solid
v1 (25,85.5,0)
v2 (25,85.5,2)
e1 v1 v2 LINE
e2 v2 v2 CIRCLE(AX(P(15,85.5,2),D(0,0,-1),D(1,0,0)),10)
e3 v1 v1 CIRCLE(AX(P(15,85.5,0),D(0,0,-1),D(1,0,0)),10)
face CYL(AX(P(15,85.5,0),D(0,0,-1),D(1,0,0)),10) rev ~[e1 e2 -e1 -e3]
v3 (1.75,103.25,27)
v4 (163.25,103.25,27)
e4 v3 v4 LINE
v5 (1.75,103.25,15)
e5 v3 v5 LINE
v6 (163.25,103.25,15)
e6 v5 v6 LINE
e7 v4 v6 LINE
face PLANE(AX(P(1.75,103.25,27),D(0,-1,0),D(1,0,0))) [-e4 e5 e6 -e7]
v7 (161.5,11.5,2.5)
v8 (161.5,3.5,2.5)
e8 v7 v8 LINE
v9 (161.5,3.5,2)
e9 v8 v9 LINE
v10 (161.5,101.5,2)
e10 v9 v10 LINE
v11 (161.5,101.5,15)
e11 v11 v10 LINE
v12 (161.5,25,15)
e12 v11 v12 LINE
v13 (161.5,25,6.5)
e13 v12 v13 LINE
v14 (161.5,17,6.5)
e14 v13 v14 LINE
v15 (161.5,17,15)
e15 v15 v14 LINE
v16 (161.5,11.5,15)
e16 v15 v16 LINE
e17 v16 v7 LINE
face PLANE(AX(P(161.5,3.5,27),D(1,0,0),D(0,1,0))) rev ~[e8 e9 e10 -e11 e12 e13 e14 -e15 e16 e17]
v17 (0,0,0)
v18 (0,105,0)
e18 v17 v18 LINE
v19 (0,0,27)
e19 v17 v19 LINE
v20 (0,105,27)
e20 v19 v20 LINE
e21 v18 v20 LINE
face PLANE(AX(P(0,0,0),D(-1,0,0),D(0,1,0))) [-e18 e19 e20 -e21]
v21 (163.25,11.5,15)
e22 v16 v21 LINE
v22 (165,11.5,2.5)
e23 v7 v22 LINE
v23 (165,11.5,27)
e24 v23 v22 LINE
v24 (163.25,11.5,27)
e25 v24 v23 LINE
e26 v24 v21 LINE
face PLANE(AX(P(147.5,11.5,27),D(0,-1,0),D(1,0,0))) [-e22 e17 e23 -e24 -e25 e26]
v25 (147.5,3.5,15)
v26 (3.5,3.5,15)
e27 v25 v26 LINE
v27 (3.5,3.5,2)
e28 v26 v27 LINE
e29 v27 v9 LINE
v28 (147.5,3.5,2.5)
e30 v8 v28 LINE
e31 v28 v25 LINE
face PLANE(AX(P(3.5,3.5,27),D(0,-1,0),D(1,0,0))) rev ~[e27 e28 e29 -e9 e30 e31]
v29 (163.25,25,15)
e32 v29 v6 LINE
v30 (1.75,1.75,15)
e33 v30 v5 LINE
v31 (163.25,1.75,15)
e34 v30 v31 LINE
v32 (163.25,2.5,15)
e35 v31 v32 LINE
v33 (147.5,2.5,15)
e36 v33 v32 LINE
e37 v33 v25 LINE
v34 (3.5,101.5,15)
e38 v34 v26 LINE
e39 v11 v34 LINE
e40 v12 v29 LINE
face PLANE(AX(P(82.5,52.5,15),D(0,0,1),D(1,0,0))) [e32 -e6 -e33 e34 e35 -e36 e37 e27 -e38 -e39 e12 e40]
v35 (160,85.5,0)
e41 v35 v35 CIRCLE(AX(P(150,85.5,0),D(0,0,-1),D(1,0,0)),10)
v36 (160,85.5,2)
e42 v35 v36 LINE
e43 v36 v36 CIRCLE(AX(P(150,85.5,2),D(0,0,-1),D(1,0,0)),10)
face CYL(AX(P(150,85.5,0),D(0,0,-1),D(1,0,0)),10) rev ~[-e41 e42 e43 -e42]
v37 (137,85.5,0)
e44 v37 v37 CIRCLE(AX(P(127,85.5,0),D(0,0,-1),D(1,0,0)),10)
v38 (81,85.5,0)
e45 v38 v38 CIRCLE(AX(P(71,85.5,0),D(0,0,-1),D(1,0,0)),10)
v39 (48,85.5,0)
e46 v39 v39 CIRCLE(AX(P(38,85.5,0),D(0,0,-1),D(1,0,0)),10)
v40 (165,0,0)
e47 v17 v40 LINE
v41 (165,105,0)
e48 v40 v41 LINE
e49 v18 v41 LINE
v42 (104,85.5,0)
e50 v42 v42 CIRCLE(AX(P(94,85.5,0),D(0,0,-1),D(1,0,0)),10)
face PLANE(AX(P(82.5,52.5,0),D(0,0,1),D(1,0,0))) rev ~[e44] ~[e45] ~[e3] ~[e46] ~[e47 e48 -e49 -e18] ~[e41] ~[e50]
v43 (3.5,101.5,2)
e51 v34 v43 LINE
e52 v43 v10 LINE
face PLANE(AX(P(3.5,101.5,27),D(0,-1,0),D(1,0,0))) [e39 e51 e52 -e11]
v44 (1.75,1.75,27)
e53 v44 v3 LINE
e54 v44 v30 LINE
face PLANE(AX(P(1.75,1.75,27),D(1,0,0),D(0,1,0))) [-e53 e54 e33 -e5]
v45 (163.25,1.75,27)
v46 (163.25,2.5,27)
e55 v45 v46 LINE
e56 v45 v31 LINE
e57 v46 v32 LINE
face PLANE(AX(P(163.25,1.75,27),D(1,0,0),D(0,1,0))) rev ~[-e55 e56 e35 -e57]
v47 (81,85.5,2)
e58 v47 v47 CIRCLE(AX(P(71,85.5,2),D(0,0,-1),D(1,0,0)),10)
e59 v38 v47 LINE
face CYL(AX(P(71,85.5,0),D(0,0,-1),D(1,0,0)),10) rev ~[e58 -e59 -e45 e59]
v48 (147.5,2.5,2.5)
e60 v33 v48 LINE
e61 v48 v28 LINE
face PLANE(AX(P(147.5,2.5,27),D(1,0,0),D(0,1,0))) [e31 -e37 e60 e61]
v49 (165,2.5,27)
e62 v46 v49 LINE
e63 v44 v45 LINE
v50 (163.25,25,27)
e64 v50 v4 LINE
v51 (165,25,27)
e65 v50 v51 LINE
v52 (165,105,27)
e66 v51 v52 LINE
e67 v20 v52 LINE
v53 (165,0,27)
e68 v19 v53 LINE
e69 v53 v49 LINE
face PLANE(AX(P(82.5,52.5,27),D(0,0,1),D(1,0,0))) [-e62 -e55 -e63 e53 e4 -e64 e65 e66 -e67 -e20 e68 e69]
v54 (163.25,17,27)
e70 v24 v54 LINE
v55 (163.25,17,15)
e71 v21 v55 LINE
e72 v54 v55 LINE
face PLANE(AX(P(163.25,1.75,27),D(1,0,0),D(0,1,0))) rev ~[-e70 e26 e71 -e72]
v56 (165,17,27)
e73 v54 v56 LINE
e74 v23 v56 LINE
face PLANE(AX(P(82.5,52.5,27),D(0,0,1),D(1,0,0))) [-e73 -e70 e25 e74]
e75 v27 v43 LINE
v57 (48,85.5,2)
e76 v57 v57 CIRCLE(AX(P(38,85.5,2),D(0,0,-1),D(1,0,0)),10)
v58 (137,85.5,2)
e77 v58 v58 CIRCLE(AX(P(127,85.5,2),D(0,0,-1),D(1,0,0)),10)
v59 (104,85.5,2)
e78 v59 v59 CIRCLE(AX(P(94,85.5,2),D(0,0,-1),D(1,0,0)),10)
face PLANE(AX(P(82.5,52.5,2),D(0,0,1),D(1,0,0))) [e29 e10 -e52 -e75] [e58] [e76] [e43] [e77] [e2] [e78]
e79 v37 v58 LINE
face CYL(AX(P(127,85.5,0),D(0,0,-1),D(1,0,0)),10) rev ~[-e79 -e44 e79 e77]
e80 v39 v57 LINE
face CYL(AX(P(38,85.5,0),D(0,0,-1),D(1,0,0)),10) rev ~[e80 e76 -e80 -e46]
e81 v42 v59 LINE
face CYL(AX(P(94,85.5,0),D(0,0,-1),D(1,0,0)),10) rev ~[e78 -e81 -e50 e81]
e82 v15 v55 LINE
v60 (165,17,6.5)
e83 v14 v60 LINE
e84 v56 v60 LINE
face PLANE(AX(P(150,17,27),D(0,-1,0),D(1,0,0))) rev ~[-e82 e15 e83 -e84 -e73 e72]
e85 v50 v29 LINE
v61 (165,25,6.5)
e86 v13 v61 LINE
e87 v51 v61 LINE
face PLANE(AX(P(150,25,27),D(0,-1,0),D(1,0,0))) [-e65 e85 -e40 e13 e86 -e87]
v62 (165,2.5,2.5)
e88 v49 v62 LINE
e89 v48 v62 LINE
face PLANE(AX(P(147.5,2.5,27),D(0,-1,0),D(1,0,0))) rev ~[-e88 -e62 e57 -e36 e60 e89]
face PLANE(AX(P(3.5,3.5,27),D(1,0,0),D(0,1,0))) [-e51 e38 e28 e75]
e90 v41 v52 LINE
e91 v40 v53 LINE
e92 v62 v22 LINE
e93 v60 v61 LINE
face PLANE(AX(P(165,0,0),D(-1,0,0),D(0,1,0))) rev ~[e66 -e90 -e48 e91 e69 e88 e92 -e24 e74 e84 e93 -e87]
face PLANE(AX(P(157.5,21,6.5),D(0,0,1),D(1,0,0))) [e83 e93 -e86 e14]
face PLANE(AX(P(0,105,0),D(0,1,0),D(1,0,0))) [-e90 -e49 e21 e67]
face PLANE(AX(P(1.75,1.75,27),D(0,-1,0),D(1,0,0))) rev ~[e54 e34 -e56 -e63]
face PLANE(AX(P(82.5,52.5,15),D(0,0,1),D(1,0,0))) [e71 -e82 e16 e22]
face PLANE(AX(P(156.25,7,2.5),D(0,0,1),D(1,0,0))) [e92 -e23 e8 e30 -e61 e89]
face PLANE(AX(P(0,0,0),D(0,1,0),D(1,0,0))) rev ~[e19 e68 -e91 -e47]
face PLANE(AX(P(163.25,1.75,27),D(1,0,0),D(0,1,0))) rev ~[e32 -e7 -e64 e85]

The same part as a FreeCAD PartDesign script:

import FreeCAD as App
import Part
import Sketcher
Q = App.Units.Quantity

doc = App.newDocument("Part")
body = doc.addObject("PartDesign::Body", "Body")

# Sketch on XY plane
sketch1 = body.newObject("Sketcher::SketchObject", "Sketch")
sketch1.AttachmentSupport = (doc.getObject("XY_Plane"), [""])
sketch1.MapMode = "FlatFace"
sketch1.addGeometry(Part.LineSegment(App.Vector(0, 105, 0), App.Vector(0, 0, 0)), False)
sketch1.addGeometry(Part.LineSegment(App.Vector(0, 0, 0), App.Vector(165, 0, 0)), False)
sketch1.addGeometry(Part.LineSegment(App.Vector(165, 0, 0), App.Vector(165, 105, 0)), False)
sketch1.addGeometry(Part.LineSegment(App.Vector(165, 105, 0), App.Vector(0, 105, 0)), False)
sketch1.addConstraint(Sketcher.Constraint("Coincident", 0, 2, 1, 1))
sketch1.addConstraint(Sketcher.Constraint("Coincident", 1, 2, 2, 1))
sketch1.addConstraint(Sketcher.Constraint("Coincident", 2, 2, 3, 1))
sketch1.addConstraint(Sketcher.Constraint("Coincident", 3, 2, 0, 1))
sketch1.addConstraint(Sketcher.Constraint("Vertical", 0))
sketch1.addConstraint(Sketcher.Constraint("Horizontal", 1))
sketch1.addConstraint(Sketcher.Constraint("Vertical", 2))
sketch1.addConstraint(Sketcher.Constraint("Horizontal", 3))
sketch1.addConstraint(Sketcher.Constraint("Coincident", 0, 2, -1, 1))
sketch1.addConstraint(Sketcher.Constraint("DistanceX", 1, 1, 1, 2, Q("165 mm")))
sketch1.addConstraint(Sketcher.Constraint("DistanceY", 0, 2, 0, 1, Q("105 mm")))
pad1 = body.newObject("PartDesign::Pad", "Pad")
pad1.Profile = sketch1
pad1.Length = 27

# Sketch on XY plane
sketch2 = body.newObject("Sketcher::SketchObject", "Sketch001")
sketch2.AttachmentSupport = (doc.getObject("XY_Plane"), [""])
sketch2.MapMode = "FlatFace"
sketch2.AttachmentOffset = App.Placement(App.Vector(0, 0, 27), App.Rotation())
sketch2.addGeometry(Part.LineSegment(App.Vector(4, 102, 0), App.Vector(4, 4, 0)), False)
sketch2.addGeometry(Part.LineSegment(App.Vector(4, 4, 0), App.Vector(162, 4, 0)), False)
sketch2.addGeometry(Part.LineSegment(App.Vector(162, 4, 0), App.Vector(162, 102, 0)), False)
sketch2.addGeometry(Part.LineSegment(App.Vector(162, 102, 0), App.Vector(4, 102, 0)), False)
sketch2.addConstraint(Sketcher.Constraint("Coincident", 0, 2, 1, 1))
sketch2.addConstraint(Sketcher.Constraint("Coincident", 1, 2, 2, 1))
sketch2.addConstraint(Sketcher.Constraint("Coincident", 2, 2, 3, 1))
sketch2.addConstraint(Sketcher.Constraint("Coincident", 3, 2, 0, 1))
sketch2.addConstraint(Sketcher.Constraint("Vertical", 0))
sketch2.addConstraint(Sketcher.Constraint("Horizontal", 1))
sketch2.addConstraint(Sketcher.Constraint("Vertical", 2))
sketch2.addConstraint(Sketcher.Constraint("Horizontal", 3))
sketch2.addConstraint(Sketcher.Constraint("DistanceX", 1, 1, 1, 2, Q("158 mm")))
sketch2.addConstraint(Sketcher.Constraint("DistanceY", 0, 2, 0, 1, Q("98 mm")))
sketch2.addConstraint(Sketcher.Constraint("DistanceX", -1, 1, 0, 2, Q("3.5 mm")))
sketch2.addConstraint(Sketcher.Constraint("DistanceY", -1, 1, 0, 2, Q("3.5 mm")))
pocket1 = body.newObject("PartDesign::Pocket", "Pocket")
pocket1.Profile = sketch2
pocket1.Length = 25

# Sketch on XY plane
sketch3 = body.newObject("Sketcher::SketchObject", "Sketch002")
sketch3.AttachmentSupport = (doc.getObject("XY_Plane"), [""])
sketch3.MapMode = "FlatFace"
sketch3.AttachmentOffset = App.Placement(App.Vector(0, 0, 27), App.Rotation())
sketch3.addGeometry(Part.LineSegment(App.Vector(2, 103, 0), App.Vector(2, 2, 0)), False)
sketch3.addGeometry(Part.LineSegment(App.Vector(2, 2, 0), App.Vector(163, 2, 0)), False)
sketch3.addGeometry(Part.LineSegment(App.Vector(163, 2, 0), App.Vector(163, 103, 0)), False)
sketch3.addGeometry(Part.LineSegment(App.Vector(163, 103, 0), App.Vector(2, 103, 0)), False)
sketch3.addConstraint(Sketcher.Constraint("Coincident", 0, 2, 1, 1))
sketch3.addConstraint(Sketcher.Constraint("Coincident", 1, 2, 2, 1))
sketch3.addConstraint(Sketcher.Constraint("Coincident", 2, 2, 3, 1))
sketch3.addConstraint(Sketcher.Constraint("Coincident", 3, 2, 0, 1))
sketch3.addConstraint(Sketcher.Constraint("Vertical", 0))
sketch3.addConstraint(Sketcher.Constraint("Horizontal", 1))
sketch3.addConstraint(Sketcher.Constraint("Vertical", 2))
sketch3.addConstraint(Sketcher.Constraint("Horizontal", 3))
sketch3.addConstraint(Sketcher.Constraint("DistanceX", 1, 1, 1, 2, Q("161.5 mm")))
sketch3.addConstraint(Sketcher.Constraint("DistanceY", 0, 2, 0, 1, Q("101.5 mm")))
sketch3.addConstraint(Sketcher.Constraint("DistanceX", -1, 1, 0, 2, Q("1.75 mm")))
sketch3.addConstraint(Sketcher.Constraint("DistanceY", -1, 1, 0, 2, Q("1.75 mm")))
pocket2 = body.newObject("PartDesign::Pocket", "Pocket001")
pocket2.Profile = sketch3
pocket2.Length = 12

# Sketch on XY plane
sketch4 = body.newObject("Sketcher::SketchObject", "Sketch003")
sketch4.AttachmentSupport = (doc.getObject("XY_Plane"), [""])
sketch4.MapMode = "FlatFace"
sketch4.addGeometry(Part.Circle(App.Vector(15, 86, 0), App.Vector(0, 0, 1), 10), False)
sketch4.addGeometry(Part.Circle(App.Vector(38, 86, 0), App.Vector(0, 0, 1), 10), False)
sketch4.addGeometry(Part.Circle(App.Vector(71, 86, 0), App.Vector(0, 0, 1), 10), False)
sketch4.addGeometry(Part.Circle(App.Vector(94, 86, 0), App.Vector(0, 0, 1), 10), False)
sketch4.addGeometry(Part.Circle(App.Vector(127, 86, 0), App.Vector(0, 0, 1), 10), False)
sketch4.addGeometry(Part.Circle(App.Vector(150, 86, 0), App.Vector(0, 0, 1), 10), False)
sketch4.addConstraint(Sketcher.Constraint("Equal", 0, 1))
sketch4.addConstraint(Sketcher.Constraint("Equal", 1, 2))
sketch4.addConstraint(Sketcher.Constraint("Equal", 2, 3))
sketch4.addConstraint(Sketcher.Constraint("Equal", 3, 4))
sketch4.addConstraint(Sketcher.Constraint("Equal", 4, 5))
sketch4.addConstraint(Sketcher.Constraint("Horizontal", 0, 3, 1, 3))
sketch4.addConstraint(Sketcher.Constraint("Horizontal", 1, 3, 2, 3))
sketch4.addConstraint(Sketcher.Constraint("Horizontal", 2, 3, 3, 3))
sketch4.addConstraint(Sketcher.Constraint("Horizontal", 3, 3, 4, 3))
sketch4.addConstraint(Sketcher.Constraint("Horizontal", 4, 3, 5, 3))
sketch4.addConstraint(Sketcher.Constraint("Diameter", 0, Q("20 mm")))
sketch4.addConstraint(Sketcher.Constraint("DistanceX", -1, 1, 0, 3, Q("15 mm")))
sketch4.addConstraint(Sketcher.Constraint("DistanceX", -1, 1, 1, 3, Q("38 mm")))
sketch4.addConstraint(Sketcher.Constraint("DistanceX", -1, 1, 2, 3, Q("71 mm")))
sketch4.addConstraint(Sketcher.Constraint("DistanceX", -1, 1, 3, 3, Q("94 mm")))
sketch4.addConstraint(Sketcher.Constraint("DistanceX", -1, 1, 4, 3, Q("127 mm")))
sketch4.addConstraint(Sketcher.Constraint("DistanceX", -1, 1, 5, 3, Q("150 mm")))
sketch4.addConstraint(Sketcher.Constraint("DistanceY", -1, 1, 0, 3, Q("85.5 mm")))
pocket3 = body.newObject("PartDesign::Pocket", "Pocket002")
pocket3.Profile = sketch4
pocket3.Type = "ThroughAll"
pocket3.Reversed = True

# Sketch on XY plane
sketch5 = body.newObject("Sketcher::SketchObject", "Sketch004")
sketch5.AttachmentSupport = (doc.getObject("XY_Plane"), [""])
sketch5.MapMode = "FlatFace"
sketch5.AttachmentOffset = App.Placement(App.Vector(0, 0, 27), App.Rotation())
sketch5.addGeometry(Part.LineSegment(App.Vector(148, 12, 0), App.Vector(148, 2, 0)), False)
sketch5.addGeometry(Part.LineSegment(App.Vector(148, 2, 0), App.Vector(165, 2, 0)), False)
sketch5.addGeometry(Part.LineSegment(App.Vector(165, 2, 0), App.Vector(165, 12, 0)), False)
sketch5.addGeometry(Part.LineSegment(App.Vector(165, 12, 0), App.Vector(148, 12, 0)), False)
sketch5.addConstraint(Sketcher.Constraint("Coincident", 0, 2, 1, 1))
sketch5.addConstraint(Sketcher.Constraint("Coincident", 1, 2, 2, 1))
sketch5.addConstraint(Sketcher.Constraint("Coincident", 2, 2, 3, 1))
sketch5.addConstraint(Sketcher.Constraint("Coincident", 3, 2, 0, 1))
sketch5.addConstraint(Sketcher.Constraint("Vertical", 0))
sketch5.addConstraint(Sketcher.Constraint("Horizontal", 1))
sketch5.addConstraint(Sketcher.Constraint("Vertical", 2))
sketch5.addConstraint(Sketcher.Constraint("Horizontal", 3))
sketch5.addConstraint(Sketcher.Constraint("DistanceY", 0, 2, 0, 1, Q("9 mm")))
sketch5.addConstraint(Sketcher.Constraint("DistanceX", 1, 1, 1, 2, Q("17.5 mm")))
sketch5.addConstraint(Sketcher.Constraint("DistanceX", -1, 1, 1, 2, Q("165 mm")))
sketch5.addConstraint(Sketcher.Constraint("DistanceY", -1, 1, 0, 2, Q("2.5 mm")))
pocket4 = body.newObject("PartDesign::Pocket", "Pocket003")
pocket4.Profile = sketch5
pocket4.Length = 24.5

# Sketch on XY plane
sketch6 = body.newObject("Sketcher::SketchObject", "Sketch005")
sketch6.AttachmentSupport = (doc.getObject("XY_Plane"), [""])
sketch6.MapMode = "FlatFace"
sketch6.AttachmentOffset = App.Placement(App.Vector(0, 0, 27), App.Rotation())
sketch6.addGeometry(Part.LineSegment(App.Vector(150, 25, 0), App.Vector(150, 17, 0)), False)
sketch6.addGeometry(Part.LineSegment(App.Vector(150, 17, 0), App.Vector(165, 17, 0)), False)
sketch6.addGeometry(Part.LineSegment(App.Vector(165, 17, 0), App.Vector(165, 25, 0)), False)
sketch6.addGeometry(Part.LineSegment(App.Vector(165, 25, 0), App.Vector(150, 25, 0)), False)
sketch6.addConstraint(Sketcher.Constraint("Coincident", 0, 2, 1, 1))
sketch6.addConstraint(Sketcher.Constraint("Coincident", 1, 2, 2, 1))
sketch6.addConstraint(Sketcher.Constraint("Coincident", 2, 2, 3, 1))
sketch6.addConstraint(Sketcher.Constraint("Coincident", 3, 2, 0, 1))
sketch6.addConstraint(Sketcher.Constraint("Vertical", 0))
sketch6.addConstraint(Sketcher.Constraint("Horizontal", 1))
sketch6.addConstraint(Sketcher.Constraint("Vertical", 2))
sketch6.addConstraint(Sketcher.Constraint("Horizontal", 3))
sketch6.addConstraint(Sketcher.Constraint("DistanceX", 1, 1, 1, 2, Q("15 mm")))
sketch6.addConstraint(Sketcher.Constraint("DistanceY", 0, 2, 0, 1, Q("8 mm")))
sketch6.addConstraint(Sketcher.Constraint("DistanceX", -1, 1, 0, 2, Q("150 mm")))
sketch6.addConstraint(Sketcher.Constraint("DistanceY", -1, 1, 0, 2, Q("17 mm")))
pocket5 = body.newObject("PartDesign::Pocket", "Pocket004")
pocket5.Profile = sketch6
pocket5.Length = 20.5

doc.recompute()
